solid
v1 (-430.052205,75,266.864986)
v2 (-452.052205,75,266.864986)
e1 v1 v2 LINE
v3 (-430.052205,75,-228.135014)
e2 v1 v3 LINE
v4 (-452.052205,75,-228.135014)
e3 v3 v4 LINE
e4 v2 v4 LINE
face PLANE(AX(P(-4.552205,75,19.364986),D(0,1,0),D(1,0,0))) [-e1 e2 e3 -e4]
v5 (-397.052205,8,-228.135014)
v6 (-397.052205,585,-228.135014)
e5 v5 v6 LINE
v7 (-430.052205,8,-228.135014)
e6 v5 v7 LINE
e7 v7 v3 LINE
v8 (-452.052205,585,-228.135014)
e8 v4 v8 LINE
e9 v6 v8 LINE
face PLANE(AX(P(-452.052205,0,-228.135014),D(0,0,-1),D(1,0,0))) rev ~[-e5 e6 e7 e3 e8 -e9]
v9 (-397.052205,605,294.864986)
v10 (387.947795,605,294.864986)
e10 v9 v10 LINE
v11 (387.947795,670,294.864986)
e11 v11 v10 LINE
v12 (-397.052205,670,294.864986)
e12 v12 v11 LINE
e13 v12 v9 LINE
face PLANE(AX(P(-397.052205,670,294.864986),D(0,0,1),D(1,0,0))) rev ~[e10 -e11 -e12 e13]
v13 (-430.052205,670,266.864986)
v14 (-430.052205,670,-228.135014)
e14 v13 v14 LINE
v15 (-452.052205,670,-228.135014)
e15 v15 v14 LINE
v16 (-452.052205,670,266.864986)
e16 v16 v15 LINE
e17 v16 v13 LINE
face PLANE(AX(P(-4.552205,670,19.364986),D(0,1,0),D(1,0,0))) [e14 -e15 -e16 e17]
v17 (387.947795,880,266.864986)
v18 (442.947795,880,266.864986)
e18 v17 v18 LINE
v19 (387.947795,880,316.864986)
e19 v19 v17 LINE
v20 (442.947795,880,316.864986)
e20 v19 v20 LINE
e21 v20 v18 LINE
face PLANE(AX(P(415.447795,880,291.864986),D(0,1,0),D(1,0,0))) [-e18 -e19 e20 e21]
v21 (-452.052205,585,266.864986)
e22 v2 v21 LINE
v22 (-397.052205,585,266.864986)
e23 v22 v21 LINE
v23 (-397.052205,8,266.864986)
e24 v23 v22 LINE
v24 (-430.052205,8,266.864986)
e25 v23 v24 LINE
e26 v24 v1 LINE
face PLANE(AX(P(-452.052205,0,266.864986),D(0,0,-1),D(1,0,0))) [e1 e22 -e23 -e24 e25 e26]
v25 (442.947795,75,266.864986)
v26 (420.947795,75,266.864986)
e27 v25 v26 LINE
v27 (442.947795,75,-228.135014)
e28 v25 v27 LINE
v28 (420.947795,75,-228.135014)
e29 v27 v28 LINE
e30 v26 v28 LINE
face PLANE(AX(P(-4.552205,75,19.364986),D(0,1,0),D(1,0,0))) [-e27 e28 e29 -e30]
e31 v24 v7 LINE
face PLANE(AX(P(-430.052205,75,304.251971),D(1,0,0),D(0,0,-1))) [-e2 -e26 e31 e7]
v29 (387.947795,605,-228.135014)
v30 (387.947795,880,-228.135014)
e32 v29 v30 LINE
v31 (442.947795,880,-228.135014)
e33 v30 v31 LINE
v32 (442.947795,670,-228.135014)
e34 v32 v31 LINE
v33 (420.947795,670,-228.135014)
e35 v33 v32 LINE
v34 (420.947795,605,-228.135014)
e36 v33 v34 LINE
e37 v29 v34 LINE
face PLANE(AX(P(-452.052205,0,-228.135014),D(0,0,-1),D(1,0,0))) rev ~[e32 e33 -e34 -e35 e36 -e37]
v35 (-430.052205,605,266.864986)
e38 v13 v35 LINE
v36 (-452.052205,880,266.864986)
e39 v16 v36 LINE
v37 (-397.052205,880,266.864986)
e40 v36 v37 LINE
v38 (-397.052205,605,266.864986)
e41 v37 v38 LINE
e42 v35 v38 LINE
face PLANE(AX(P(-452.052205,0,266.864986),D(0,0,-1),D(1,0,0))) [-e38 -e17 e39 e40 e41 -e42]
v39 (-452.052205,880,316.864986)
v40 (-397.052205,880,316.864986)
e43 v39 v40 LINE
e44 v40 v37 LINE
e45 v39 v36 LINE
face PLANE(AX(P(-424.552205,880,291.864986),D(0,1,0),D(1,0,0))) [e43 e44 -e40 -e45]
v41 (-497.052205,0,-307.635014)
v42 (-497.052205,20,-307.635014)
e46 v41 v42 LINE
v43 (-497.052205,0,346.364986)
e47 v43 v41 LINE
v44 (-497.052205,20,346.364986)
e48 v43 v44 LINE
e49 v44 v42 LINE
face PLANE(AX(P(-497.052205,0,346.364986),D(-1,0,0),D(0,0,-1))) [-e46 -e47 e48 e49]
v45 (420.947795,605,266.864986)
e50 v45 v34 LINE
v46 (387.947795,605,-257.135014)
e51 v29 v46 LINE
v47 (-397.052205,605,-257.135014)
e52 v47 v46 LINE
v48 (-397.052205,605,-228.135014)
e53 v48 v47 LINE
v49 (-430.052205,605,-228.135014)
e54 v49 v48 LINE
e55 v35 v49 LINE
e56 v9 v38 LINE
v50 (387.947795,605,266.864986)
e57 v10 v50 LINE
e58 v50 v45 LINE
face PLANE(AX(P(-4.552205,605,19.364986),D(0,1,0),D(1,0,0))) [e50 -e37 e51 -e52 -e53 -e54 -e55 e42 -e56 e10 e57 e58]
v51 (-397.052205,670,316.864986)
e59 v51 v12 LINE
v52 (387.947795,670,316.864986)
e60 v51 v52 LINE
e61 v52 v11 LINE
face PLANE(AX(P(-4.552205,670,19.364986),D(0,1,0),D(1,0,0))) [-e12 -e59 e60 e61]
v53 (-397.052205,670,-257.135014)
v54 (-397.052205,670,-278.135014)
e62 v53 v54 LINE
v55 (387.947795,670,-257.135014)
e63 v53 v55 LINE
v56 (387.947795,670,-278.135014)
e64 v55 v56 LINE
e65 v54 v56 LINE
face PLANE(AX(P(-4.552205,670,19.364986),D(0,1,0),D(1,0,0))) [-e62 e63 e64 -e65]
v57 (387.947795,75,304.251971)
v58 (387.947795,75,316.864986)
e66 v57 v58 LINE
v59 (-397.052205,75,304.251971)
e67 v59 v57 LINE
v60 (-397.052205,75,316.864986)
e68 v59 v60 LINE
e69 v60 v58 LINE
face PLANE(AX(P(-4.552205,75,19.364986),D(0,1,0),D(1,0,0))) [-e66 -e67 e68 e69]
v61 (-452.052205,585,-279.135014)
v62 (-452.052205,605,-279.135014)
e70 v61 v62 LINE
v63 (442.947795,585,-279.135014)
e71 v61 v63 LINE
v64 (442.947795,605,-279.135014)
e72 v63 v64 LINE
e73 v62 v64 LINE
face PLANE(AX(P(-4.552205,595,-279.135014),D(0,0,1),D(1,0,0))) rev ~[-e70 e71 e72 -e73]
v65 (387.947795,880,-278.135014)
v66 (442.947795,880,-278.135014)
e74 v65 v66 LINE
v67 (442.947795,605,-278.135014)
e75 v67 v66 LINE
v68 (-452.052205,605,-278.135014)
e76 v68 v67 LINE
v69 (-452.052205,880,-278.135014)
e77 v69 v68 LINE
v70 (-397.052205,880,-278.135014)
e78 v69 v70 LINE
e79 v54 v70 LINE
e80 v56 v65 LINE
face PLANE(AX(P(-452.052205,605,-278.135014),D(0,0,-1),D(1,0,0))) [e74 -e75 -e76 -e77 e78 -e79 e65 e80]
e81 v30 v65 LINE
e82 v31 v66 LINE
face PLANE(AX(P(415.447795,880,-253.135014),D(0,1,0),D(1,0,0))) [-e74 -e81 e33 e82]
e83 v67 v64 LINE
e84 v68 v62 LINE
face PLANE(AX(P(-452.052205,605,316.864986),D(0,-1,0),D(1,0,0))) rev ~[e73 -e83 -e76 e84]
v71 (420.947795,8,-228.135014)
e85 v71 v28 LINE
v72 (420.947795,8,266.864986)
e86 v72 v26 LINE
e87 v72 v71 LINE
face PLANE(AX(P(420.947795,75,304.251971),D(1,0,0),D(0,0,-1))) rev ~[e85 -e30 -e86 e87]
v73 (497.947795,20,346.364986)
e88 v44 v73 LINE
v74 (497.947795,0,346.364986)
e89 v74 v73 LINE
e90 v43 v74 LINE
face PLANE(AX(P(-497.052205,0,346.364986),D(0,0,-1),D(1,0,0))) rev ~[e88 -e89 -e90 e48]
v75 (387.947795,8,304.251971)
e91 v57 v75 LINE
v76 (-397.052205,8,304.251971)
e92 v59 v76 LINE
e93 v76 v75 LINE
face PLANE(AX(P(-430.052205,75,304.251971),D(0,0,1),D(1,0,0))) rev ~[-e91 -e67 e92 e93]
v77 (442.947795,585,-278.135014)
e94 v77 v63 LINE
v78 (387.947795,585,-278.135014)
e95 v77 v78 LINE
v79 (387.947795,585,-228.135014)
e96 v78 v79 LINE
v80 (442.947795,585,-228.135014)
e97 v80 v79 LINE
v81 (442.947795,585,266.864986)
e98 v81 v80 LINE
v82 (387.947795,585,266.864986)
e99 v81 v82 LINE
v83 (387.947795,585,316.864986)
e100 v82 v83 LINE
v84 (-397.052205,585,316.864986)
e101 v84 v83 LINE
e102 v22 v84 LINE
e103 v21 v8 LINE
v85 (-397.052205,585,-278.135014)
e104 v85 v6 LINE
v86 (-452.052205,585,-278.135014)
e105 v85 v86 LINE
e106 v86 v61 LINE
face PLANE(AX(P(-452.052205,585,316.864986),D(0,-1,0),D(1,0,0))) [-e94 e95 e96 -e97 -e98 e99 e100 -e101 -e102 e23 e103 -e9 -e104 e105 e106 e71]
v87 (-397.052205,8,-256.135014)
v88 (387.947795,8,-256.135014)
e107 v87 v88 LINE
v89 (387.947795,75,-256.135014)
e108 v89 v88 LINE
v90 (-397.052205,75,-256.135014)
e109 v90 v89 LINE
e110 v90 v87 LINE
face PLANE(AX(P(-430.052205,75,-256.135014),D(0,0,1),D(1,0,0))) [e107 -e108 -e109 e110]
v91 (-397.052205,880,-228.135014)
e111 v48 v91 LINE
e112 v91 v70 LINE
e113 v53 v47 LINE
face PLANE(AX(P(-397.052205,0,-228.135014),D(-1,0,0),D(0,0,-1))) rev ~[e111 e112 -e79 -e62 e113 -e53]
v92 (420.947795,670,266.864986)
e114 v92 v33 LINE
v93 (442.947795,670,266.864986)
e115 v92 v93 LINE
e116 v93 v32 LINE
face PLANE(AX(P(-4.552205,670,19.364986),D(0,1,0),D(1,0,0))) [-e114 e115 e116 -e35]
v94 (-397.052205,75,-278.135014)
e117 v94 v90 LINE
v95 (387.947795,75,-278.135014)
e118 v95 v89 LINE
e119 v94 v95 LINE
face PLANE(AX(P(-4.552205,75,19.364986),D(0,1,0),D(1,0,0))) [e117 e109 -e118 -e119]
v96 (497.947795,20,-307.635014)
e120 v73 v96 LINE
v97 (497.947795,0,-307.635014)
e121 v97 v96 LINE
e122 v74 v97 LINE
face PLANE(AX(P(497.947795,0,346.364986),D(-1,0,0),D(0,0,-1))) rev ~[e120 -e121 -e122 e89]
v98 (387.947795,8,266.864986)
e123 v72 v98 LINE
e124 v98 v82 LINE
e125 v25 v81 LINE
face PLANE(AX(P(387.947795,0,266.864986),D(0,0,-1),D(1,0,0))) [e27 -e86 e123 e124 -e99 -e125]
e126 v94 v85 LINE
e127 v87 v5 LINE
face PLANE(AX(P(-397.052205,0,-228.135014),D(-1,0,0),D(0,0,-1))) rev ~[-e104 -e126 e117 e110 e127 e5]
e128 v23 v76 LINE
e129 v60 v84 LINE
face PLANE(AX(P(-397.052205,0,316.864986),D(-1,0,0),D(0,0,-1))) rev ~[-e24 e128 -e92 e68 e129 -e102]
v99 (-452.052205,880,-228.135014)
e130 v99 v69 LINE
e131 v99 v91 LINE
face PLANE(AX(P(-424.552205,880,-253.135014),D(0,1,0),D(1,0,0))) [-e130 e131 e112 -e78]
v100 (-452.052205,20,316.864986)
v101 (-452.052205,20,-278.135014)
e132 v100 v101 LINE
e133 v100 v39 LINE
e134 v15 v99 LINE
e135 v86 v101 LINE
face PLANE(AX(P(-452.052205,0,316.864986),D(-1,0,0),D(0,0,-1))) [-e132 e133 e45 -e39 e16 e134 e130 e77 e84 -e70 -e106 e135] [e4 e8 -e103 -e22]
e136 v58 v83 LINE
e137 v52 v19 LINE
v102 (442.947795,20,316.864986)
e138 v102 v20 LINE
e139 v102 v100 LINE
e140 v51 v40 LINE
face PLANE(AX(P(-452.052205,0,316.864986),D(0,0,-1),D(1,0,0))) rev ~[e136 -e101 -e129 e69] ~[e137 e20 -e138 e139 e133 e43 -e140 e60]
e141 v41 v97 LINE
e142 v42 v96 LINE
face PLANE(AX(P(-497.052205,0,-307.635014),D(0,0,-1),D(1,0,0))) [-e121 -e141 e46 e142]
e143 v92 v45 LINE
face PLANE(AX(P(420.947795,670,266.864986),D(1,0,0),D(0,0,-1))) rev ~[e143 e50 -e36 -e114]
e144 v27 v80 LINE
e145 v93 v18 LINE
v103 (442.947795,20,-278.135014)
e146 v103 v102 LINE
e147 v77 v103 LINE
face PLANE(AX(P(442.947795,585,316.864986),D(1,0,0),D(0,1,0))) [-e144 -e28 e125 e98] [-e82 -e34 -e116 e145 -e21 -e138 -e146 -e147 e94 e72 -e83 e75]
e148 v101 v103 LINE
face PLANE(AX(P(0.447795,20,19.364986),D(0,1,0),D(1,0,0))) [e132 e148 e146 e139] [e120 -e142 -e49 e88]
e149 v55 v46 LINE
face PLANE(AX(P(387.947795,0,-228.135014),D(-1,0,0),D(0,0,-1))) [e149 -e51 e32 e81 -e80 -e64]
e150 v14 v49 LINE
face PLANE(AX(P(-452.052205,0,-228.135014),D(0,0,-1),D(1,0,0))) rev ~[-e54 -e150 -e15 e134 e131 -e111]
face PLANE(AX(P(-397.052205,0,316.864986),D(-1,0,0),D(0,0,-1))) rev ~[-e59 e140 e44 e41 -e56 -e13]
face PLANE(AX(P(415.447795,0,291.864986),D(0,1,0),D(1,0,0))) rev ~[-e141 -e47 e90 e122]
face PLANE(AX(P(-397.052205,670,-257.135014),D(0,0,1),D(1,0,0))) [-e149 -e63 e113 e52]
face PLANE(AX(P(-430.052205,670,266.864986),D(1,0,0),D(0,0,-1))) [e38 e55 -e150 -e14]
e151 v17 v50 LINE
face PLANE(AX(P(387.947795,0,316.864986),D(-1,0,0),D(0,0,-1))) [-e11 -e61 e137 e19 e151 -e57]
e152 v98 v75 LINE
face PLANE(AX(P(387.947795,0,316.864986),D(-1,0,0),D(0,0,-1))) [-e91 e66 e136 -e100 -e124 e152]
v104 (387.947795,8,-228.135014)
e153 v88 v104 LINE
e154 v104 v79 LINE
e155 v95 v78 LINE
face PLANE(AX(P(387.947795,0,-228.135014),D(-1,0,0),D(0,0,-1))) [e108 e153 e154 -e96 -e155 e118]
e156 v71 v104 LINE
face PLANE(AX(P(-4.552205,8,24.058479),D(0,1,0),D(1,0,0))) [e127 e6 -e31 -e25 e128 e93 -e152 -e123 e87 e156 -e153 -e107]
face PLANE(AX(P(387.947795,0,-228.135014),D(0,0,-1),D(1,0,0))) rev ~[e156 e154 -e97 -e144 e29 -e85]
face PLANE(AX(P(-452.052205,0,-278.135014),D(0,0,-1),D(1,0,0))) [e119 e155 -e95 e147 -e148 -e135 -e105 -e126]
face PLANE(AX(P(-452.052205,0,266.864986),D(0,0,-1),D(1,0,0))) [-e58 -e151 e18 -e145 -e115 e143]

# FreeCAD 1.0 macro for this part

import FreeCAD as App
import Part
import Sketcher
from FreeCAD import Vector


def add_polygon(sketch, points):
    """Adds a closed chain of lines whose ends are joined by coincident constraints."""
    first, n = sketch.GeometryCount, len(points)
    for a, b in zip(points, points[1:] + points[:1]):
        sketch.addGeometry(Part.LineSegment(App.Vector(*a, 0), App.Vector(*b, 0)), False)
    for i in range(n):
        sketch.addConstraint(Sketcher.Constraint("Coincident", first + i, 2, first + (i + 1) % n, 1))

doc = App.newDocument("Part")
body = doc.addObject("PartDesign::Body", "Body")

sketch1 = doc.addObject("Sketcher::SketchObject", "Sketch")
body.addObject(sketch1)
sketch1.AttachmentSupport = (doc.XZ_Plane, [""])
sketch1.MapMode = "FlatFace"
add_polygon(sketch1, [(-497, -308), (-497, 346), (498, 346), (498, -308)])
sketch1.addConstraint([
    Sketcher.Constraint("Vertical", 0),
    Sketcher.Constraint("Horizontal", 1),
    Sketcher.Constraint("Vertical", 2),
    Sketcher.Constraint("Horizontal", 3),
    Sketcher.Constraint("DistanceX", 1, 1, 1, 2, 995.0),
    Sketcher.Constraint("DistanceY", 0, 1, 0, 2, 654.0),
    Sketcher.Constraint("DistanceX", 0, 2, -1, 1, 497.052205),
    Sketcher.Constraint("DistanceY", -1, 1, 0, 2, 346.364986),
])
pad1 = doc.addObject("PartDesign::Pad", "Pad")
body.addObject(pad1)
pad1.Profile = sketch1
pad1.Length = 20
pad1.Reversed = True

sketch2 = doc.addObject("Sketcher::SketchObject", "Sketch001")
body.addObject(sketch2)
sketch2.AttachmentSupport = (doc.XZ_Plane, [""])
sketch2.MapMode = "FlatFace"
add_polygon(sketch2, [(-452, -278), (-452, 317), (443, 317), (443, -278)])
sketch2.addConstraint([
    Sketcher.Constraint("Vertical", 0),
    Sketcher.Constraint("Horizontal", 1),
    Sketcher.Constraint("Vertical", 2),
    Sketcher.Constraint("Horizontal", 3),
    Sketcher.Constraint("DistanceX", 1, 1, 1, 2, 895.0),
    Sketcher.Constraint("DistanceY", 0, 1, 0, 2, 595.0),
    Sketcher.Constraint("DistanceX", 0, 2, -1, 1, 452.052205),
    Sketcher.Constraint("DistanceY", -1, 1, 0, 2, 316.864986),
])
pad2 = doc.addObject("PartDesign::Pad", "Pad001")
body.addObject(pad2)
pad2.Profile = sketch2
pad2.Length = 75
pad2.Reversed = True

sketch3 = doc.addObject("Sketcher::SketchObject", "Sketch002")
body.addObject(sketch3)
sketch3.AttachmentSupport = (doc.XZ_Plane, [""])
sketch3.MapMode = "FlatFace"
sketch3.AttachmentOffset = App.Placement(Vector(0, 0, -75), App.Rotation())
add_polygon(sketch3, [(-430, -256), (-430, 304), (421, 304), (421, -256)])
sketch3.addConstraint([
    Sketcher.Constraint("Vertical", 0),
    Sketcher.Constraint("Horizontal", 1),
    Sketcher.Constraint("Vertical", 2),
    Sketcher.Constraint("Horizontal", 3),
    Sketcher.Constraint("DistanceX", 1, 1, 1, 2, 851.0),
    Sketcher.Constraint("DistanceY", 0, 1, 0, 2, 560.386984),
    Sketcher.Constraint("DistanceY", -1, 1, 0, 2, 304.251971),
    Sketcher.Constraint("DistanceX", 0, 2, -1, 1, 430.052205),
])
pocket1 = doc.addObject("PartDesign::Pocket", "Pocket")
body.addObject(pocket1)
pocket1.Profile = sketch3
pocket1.Length = 67
pocket1.Reversed = True

sketch4 = doc.addObject("Sketcher::SketchObject", "Sketch003")
body.addObject(sketch4)
sketch4.AttachmentSupport = (doc.XZ_Plane, [""])
sketch4.MapMode = "FlatFace"
add_polygon(sketch4, [(-452, 267), (-452, 317), (-397, 317), (-397, 267)])
sketch4.addConstraint([
    Sketcher.Constraint("Vertical", 0),
    Sketcher.Constraint("Horizontal", 1),
    Sketcher.Constraint("Vertical", 2),
    Sketcher.Constraint("Horizontal", 3),
    Sketcher.Constraint("DistanceX", 1, 1, 1, 2, 55.0),
    Sketcher.Constraint("DistanceY", 0, 1, 0, 2, 50.0),
    Sketcher.Constraint("DistanceX", 0, 2, -1, 1, 452.052205),
    Sketcher.Constraint("DistanceY", -1, 1, 0, 2, 316.864986),
])
pad3 = doc.addObject("PartDesign::Pad", "Pad002")
body.addObject(pad3)
pad3.Profile = sketch4
pad3.Length = 880
pad3.Reversed = True

sketch5 = doc.addObject("Sketcher::SketchObject", "Sketch004")
body.addObject(sketch5)
sketch5.AttachmentSupport = (doc.XZ_Plane, [""])
sketch5.MapMode = "FlatFace"
add_polygon(sketch5, [(-452, -278), (-452, -228), (-397, -228), (-397, -278)])
sketch5.addConstraint([
    Sketcher.Constraint("Vertical", 0),
    Sketcher.Constraint("Horizontal", 1),
    Sketcher.Constraint("Vertical", 2),
    Sketcher.Constraint("Horizontal", 3),
    Sketcher.Constraint("DistanceX", 1, 1, 1, 2, 55.0),
    Sketcher.Constraint("DistanceY", 0, 1, 0, 2, 50.0),
    Sketcher.Constraint("DistanceX", 0, 2, -1, 1, 452.052205),
    Sketcher.Constraint("DistanceY", 0, 2, -1, 1, 228.135014),
])
pad4 = doc.addObject("PartDesign::Pad", "Pad003")
body.addObject(pad4)
pad4.Profile = sketch5
pad4.Length = 880
pad4.Reversed = True

sketch6 = doc.addObject("Sketcher::SketchObject", "Sketch005")
body.addObject(sketch6)
sketch6.AttachmentSupport = (doc.XZ_Plane, [""])
sketch6.MapMode = "FlatFace"
add_polygon(sketch6, [(388, -278), (388, -228), (443, -228), (443, -278)])
sketch6.addConstraint([
    Sketcher.Constraint("Vertical", 0),
    Sketcher.Constraint("Horizontal", 1),
    Sketcher.Constraint("Vertical", 2),
    Sketcher.Constraint("Horizontal", 3),
    Sketcher.Constraint("DistanceX", 1, 1, 1, 2, 55.0),
    Sketcher.Constraint("DistanceY", 0, 1, 0, 2, 50.0),
    Sketcher.Constraint("DistanceX", -1, 1, 0, 2, 387.947795),
    Sketcher.Constraint("DistanceY", 0, 2, -1, 1, 228.135014),
])
pad5 = doc.addObject("PartDesign::Pad", "Pad004")
body.addObject(pad5)
pad5.Profile = sketch6
pad5.Length = 880
pad5.Reversed = True

sketch7 = doc.addObject("Sketcher::SketchObject", "Sketch006")
body.addObject(sketch7)
sketch7.AttachmentSupport = (doc.XZ_Plane, [""])
sketch7.MapMode = "FlatFace"
add_polygon(sketch7, [(388, 267), (388, 317), (443, 317), (443, 267)])
sketch7.addConstraint([
    Sketcher.Constraint("Vertical", 0),
    Sketcher.Constraint("Horizontal", 1),
    Sketcher.Constraint("Vertical", 2),
    Sketcher.Constraint("Horizontal", 3),
    Sketcher.Constraint("DistanceX", 1, 1, 1, 2, 55.0),
    Sketcher.Constraint("DistanceY", 0, 1, 0, 2, 50.0),
    Sketcher.Constraint("DistanceX", -1, 1, 0, 2, 387.947795),
    Sketcher.Constraint("DistanceY", -1, 1, 0, 2, 316.864986),
])
pad6 = doc.addObject("PartDesign::Pad", "Pad005")
body.addObject(pad6)
pad6.Profile = sketch7
pad6.Length = 880
pad6.Reversed = True

sketch8 = doc.addObject("Sketcher::SketchObject", "Sketch007")
body.addObject(sketch8)
sketch8.AttachmentSupport = (doc.XY_Plane, [""])
sketch8.MapMode = "FlatFace"
sketch8.AttachmentOffset = App.Placement(Vector(0, 0, 316.864986), App.Rotation())
add_polygon(sketch8, [(-452, 605), (-452, 585), (443, 585), (443, 605)])
sketch8.addConstraint([
    Sketcher.Constraint("Vertical", 0),
    Sketcher.Constraint("Horizontal", 1),
    Sketcher.Constraint("Vertical", 2),
    Sketcher.Constraint("Horizontal", 3),
    Sketcher.Constraint("DistanceX", 1, 1, 1, 2, 895.0),
    Sketcher.Constraint("DistanceY", 0, 2, 0, 1, 20.0),
    Sketcher.Constraint("DistanceY", -1, 1, 0, 2, 585.0),
    Sketcher.Constraint("DistanceX", 0, 2, -1, 1, 452.052205),
])
pad7 = doc.addObject("PartDesign::Pad", "Pad006")
body.addObject(pad7)
pad7.Profile = sketch8
pad7.Length = 596
pad7.Reversed = True

sketch9 = doc.addObject("Sketcher::SketchObject", "Sketch008")
body.addObject(sketch9)
sketch9.AttachmentSupport = (doc.XZ_Plane, [""])
sketch9.MapMode = "FlatFace"
sketch9.AttachmentOffset = App.Placement(Vector(0, 0, -605), App.Rotation())
add_polygon(sketch9, [(-452, -278), (-452, 317), (443, 317), (443, -278)])
sketch9.addConstraint([
    Sketcher.Constraint("Vertical", 0),
    Sketcher.Constraint("Horizontal", 1),
    Sketcher.Constraint("Vertical", 2),
    Sketcher.Constraint("Horizontal", 3),
    Sketcher.Constraint("DistanceX", 1, 1, 1, 2, 895.0),
    Sketcher.Constraint("DistanceY", 0, 1, 0, 2, 595.0),
    Sketcher.Constraint("DistanceX", 0, 2, -1, 1, 452.052205),
    Sketcher.Constraint("DistanceY", -1, 1, 0, 2, 316.864986),
])
pad8 = doc.addObject("PartDesign::Pad", "Pad007")
body.addObject(pad8)
pad8.Profile = sketch9
pad8.Length = 65
pad8.Reversed = True

sketch10 = doc.addObject("Sketcher::SketchObject", "Sketch009")
body.addObject(sketch10)
sketch10.AttachmentSupport = (doc.XZ_Plane, [""])
sketch10.MapMode = "FlatFace"
sketch10.AttachmentOffset = App.Placement(Vector(0, 0, -670), App.Rotation())
add_polygon(sketch10, [(-430, -228), (-430, 267), (421, 267), (421, -228)])
sketch10.addConstraint([
    Sketcher.Constraint("Vertical", 0),
    Sketcher.Constraint("Horizontal", 1),
    Sketcher.Constraint("Vertical", 2),
    Sketcher.Constraint("Horizontal", 3),
    Sketcher.Constraint("DistanceX", 1, 1, 1, 2, 851.0),
    Sketcher.Constraint("DistanceY", 0, 1, 0, 2, 495.0),
    Sketcher.Constraint("DistanceX", 0, 2, -1, 1, 430.052205),
    Sketcher.Constraint("DistanceY", -1, 1, 0, 2, 266.864986),
])
pocket2 = doc.addObject("PartDesign::Pocket", "Pocket001")
body.addObject(pocket2)
pocket2.Profile = sketch10
pocket2.Length = 65
pocket2.Reversed = True

sketch11 = doc.addObject("Sketcher::SketchObject", "Sketch010")
body.addObject(sketch11)
sketch11.AttachmentSupport = (doc.XZ_Plane, [""])
sketch11.MapMode = "FlatFace"
sketch11.AttachmentOffset = App.Placement(Vector(0, 0, -670), App.Rotation())
add_polygon(sketch11, [(-397, -257), (-397, 295), (388, 295), (388, -257)])
sketch11.addConstraint([
    Sketcher.Constraint("Vertical", 0),
    Sketcher.Constraint("Horizontal", 1),
    Sketcher.Constraint("Vertical", 2),
    Sketcher.Constraint("Horizontal", 3),
    Sketcher.Constraint("DistanceX", 1, 1, 1, 2, 785.0),
    Sketcher.Constraint("DistanceY", 0, 1, 0, 2, 552.0),
    Sketcher.Constraint("DistanceX", 0, 2, -1, 1, 397.052205),
    Sketcher.Constraint("DistanceY", -1, 1, 0, 2, 294.864986),
])
pocket3 = doc.addObject("PartDesign::Pocket", "Pocket002")
body.addObject(pocket3)
pocket3.Profile = sketch11
pocket3.Length = 65
pocket3.Reversed = True

doc.recompute()
